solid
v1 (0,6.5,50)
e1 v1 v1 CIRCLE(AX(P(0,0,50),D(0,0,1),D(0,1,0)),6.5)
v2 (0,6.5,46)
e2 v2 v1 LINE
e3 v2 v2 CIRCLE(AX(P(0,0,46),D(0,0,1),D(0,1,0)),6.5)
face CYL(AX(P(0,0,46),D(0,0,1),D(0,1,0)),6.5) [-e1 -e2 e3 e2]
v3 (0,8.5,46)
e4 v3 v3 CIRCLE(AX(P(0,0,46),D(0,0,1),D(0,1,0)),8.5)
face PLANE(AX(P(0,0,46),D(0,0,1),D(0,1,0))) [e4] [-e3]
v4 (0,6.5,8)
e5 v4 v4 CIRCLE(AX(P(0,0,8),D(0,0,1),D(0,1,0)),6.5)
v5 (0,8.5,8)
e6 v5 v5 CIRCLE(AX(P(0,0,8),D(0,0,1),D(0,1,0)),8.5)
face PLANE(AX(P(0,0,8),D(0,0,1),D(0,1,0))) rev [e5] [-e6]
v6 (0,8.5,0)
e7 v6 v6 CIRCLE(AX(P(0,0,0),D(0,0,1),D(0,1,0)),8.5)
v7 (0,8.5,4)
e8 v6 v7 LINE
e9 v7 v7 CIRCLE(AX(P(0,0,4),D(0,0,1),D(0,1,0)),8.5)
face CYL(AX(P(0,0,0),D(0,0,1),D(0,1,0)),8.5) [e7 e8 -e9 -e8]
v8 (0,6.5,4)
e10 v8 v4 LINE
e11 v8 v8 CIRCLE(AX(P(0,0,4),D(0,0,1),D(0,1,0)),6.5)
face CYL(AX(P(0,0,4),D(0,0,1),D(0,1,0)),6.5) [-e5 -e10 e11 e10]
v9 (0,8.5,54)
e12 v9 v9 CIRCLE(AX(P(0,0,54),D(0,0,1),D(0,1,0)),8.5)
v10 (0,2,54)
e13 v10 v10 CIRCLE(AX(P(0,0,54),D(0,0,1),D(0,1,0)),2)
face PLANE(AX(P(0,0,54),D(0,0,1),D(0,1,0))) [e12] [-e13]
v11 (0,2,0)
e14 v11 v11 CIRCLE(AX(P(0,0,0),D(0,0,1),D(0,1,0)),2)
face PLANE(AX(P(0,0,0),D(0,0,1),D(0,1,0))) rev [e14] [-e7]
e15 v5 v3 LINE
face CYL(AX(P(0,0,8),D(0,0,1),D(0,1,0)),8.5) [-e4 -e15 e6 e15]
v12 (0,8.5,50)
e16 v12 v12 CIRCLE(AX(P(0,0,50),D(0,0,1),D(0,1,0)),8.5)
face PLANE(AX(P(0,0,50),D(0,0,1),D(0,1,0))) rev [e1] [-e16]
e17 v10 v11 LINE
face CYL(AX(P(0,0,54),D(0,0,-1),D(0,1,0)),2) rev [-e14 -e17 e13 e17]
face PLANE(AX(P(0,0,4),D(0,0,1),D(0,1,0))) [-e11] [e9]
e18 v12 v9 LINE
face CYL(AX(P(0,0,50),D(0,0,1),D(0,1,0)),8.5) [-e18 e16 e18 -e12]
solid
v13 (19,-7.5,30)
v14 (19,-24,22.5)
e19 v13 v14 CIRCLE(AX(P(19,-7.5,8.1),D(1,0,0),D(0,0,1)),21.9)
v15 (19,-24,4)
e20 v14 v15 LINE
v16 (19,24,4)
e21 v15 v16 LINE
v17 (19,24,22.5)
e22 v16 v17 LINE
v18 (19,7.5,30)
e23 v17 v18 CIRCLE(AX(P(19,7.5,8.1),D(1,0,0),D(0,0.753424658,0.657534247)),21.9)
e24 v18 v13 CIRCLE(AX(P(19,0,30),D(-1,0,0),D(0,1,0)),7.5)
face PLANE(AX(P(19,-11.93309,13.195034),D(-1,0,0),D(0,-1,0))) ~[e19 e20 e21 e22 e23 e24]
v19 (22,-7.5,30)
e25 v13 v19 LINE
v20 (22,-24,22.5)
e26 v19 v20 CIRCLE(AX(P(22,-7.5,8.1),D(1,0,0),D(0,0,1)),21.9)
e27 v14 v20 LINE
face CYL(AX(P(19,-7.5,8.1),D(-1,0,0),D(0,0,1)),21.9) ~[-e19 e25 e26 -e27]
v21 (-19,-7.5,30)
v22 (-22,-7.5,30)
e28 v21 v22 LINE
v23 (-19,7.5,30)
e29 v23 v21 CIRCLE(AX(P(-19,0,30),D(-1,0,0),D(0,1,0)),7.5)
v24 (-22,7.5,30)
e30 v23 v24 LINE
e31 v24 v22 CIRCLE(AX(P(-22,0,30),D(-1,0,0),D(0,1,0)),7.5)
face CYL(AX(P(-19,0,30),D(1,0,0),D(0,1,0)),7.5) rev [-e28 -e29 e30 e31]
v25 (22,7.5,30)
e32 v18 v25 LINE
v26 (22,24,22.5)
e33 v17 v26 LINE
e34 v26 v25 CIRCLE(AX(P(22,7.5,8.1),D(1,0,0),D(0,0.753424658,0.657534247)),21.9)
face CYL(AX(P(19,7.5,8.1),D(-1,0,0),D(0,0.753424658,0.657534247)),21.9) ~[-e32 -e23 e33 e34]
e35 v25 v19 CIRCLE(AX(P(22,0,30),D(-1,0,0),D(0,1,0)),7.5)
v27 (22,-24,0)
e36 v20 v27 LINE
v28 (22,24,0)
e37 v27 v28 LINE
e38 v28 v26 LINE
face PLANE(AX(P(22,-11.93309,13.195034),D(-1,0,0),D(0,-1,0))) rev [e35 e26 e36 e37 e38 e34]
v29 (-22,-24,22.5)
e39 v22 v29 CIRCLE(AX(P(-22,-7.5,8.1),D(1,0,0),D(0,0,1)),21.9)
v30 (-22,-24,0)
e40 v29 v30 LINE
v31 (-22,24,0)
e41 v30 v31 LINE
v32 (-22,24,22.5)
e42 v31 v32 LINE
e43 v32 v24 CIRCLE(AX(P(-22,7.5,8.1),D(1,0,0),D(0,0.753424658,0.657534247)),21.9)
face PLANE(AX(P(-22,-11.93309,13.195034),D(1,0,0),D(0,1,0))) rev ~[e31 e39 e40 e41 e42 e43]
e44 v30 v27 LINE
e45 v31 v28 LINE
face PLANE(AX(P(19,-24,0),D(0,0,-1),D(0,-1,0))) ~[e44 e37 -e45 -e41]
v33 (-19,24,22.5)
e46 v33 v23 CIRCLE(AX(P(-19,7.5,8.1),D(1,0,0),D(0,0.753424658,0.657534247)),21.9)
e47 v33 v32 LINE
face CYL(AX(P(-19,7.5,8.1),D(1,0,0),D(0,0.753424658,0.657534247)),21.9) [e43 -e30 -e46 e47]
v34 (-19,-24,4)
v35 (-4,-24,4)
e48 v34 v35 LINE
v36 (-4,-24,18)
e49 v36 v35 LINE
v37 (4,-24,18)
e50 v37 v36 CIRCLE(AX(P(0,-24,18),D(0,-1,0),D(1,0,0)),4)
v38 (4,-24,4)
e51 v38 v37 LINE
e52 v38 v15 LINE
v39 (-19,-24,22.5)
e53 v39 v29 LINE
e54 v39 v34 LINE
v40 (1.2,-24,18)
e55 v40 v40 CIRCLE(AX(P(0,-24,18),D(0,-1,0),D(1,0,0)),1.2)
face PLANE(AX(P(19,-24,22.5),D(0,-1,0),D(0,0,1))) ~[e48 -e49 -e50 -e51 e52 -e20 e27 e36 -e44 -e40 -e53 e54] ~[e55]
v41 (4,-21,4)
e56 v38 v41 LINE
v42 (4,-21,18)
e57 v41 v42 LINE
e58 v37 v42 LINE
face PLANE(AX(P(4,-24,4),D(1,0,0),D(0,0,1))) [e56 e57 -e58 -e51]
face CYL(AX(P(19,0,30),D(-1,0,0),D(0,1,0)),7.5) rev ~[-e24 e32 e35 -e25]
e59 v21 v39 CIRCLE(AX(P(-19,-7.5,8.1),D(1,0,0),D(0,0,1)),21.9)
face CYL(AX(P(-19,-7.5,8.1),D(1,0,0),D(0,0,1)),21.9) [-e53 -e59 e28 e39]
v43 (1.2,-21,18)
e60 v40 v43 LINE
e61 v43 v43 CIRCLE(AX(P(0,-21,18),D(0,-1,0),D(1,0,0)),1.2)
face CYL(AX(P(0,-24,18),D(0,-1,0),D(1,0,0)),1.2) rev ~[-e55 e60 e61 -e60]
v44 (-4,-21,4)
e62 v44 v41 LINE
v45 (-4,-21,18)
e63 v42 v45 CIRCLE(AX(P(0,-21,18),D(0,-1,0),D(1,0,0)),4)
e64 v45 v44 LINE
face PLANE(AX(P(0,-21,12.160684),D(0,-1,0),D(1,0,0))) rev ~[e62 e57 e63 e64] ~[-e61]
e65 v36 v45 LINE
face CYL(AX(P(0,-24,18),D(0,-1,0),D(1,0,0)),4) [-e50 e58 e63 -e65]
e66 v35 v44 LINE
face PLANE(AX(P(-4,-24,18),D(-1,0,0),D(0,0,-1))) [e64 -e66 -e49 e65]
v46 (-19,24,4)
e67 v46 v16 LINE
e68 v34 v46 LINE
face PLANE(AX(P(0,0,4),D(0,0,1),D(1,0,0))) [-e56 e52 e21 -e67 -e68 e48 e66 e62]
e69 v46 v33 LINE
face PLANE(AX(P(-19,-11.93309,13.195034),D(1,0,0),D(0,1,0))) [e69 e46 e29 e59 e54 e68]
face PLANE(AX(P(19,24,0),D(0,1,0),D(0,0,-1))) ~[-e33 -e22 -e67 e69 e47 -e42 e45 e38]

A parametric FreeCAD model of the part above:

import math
import FreeCAD as App
import Part
import Sketcher

V = App.Vector
Q = App.Units.Quantity


def add_polygon(sketch, points):
    """Adds a closed chain of lines whose ends are joined by coincident constraints."""
    first, n = sketch.GeometryCount, len(points)
    for a, b in zip(points, points[1:] + points[:1]):
        sketch.addGeometry(Part.LineSegment(App.Vector(*a, 0), App.Vector(*b, 0)), False)
    for i in range(n):
        sketch.addConstraint(Sketcher.Constraint("Coincident", first + i, 2, first + (i + 1) % n, 1))

doc = App.newDocument("Part")
body = doc.addObject("PartDesign::Body", "Body")

# Sketch on YZ plane
sketch1 = body.newObject("Sketcher::SketchObject", "Sketch")
sketch1.AttachmentSupport = (doc.getObject("YZ_Plane"), [""])
sketch1.MapMode = "FlatFace"
add_polygon(sketch1, [(2, 54), (2, 0), (8.5, 0), (8.5, 4), (6.5, 4), (6.5, 8), (8.5, 8), (8.5, 46), (6.5, 46), (6.5, 50), (8.5, 50), (8.5, 54)])  # lines 0-11
sketch1.addConstraint([
    Sketcher.Constraint("Vertical", 0),
    Sketcher.Constraint("Horizontal", 1),
    Sketcher.Constraint("Vertical", 2),
    Sketcher.Constraint("Horizontal", 3),
    Sketcher.Constraint("Vertical", 4),
    Sketcher.Constraint("Horizontal", 5),
    Sketcher.Constraint("Vertical", 6),
    Sketcher.Constraint("Horizontal", 7),
    Sketcher.Constraint("Vertical", 8),
    Sketcher.Constraint("Horizontal", 9),
    Sketcher.Constraint("Vertical", 10),
    Sketcher.Constraint("Horizontal", 11),
    Sketcher.Constraint("PointOnObject", 0, 2, -1),
    Sketcher.Constraint("Vertical", 2, 2, 5, 2),
    Sketcher.Constraint("Vertical", 4, 2, 7, 2),
    Sketcher.Constraint("Vertical", 6, 2, 9, 2),
    Sketcher.Constraint("Equal", 2, 4),
    Sketcher.Constraint("Equal", 4, 8),
    Sketcher.Constraint("Equal", 8, 10),
    Sketcher.Constraint("DistanceX", 3, 2, 3, 1, Q("2 mm")),
    Sketcher.Constraint("DistanceY", 0, 2, 0, 1, Q("54 mm")),
    Sketcher.Constraint("DistanceY", 2, 1, 2, 2, Q("4 mm")),
    Sketcher.Constraint("DistanceX", 1, 1, 1, 2, Q("6.5 mm")),
    Sketcher.Constraint("DistanceX", -1, 1, 0, 2, Q("2 mm")),
])
revolution = body.newObject("PartDesign::Revolution", "Revolution")
revolution.Profile = sketch1
revolution.ReferenceAxis = (sketch1, ["V_Axis"])
revolution.Angle = 360
body2 = doc.addObject("PartDesign::Body", "Body001")

# Sketch on XY plane
sketch2 = body2.newObject("Sketcher::SketchObject", "Sketch001")
sketch2.AttachmentSupport = (doc.getObject("XY_Plane001"), [""])
sketch2.MapMode = "FlatFace"
add_polygon(sketch2, [(-19, 24), (-19, -24), (19, -24), (19, 24)])  # lines 0-3
sketch2.addConstraint([
    Sketcher.Constraint("Vertical", 0),
    Sketcher.Constraint("Horizontal", 1),
    Sketcher.Constraint("Vertical", 2),
    Sketcher.Constraint("Horizontal", 3),
    Sketcher.Constraint("Symmetric", 0, 2, 2, 2, -1, 1),
    Sketcher.Constraint("DistanceX", 1, 1, 1, 2, Q("38 mm")),
    Sketcher.Constraint("DistanceY", 0, 2, 0, 1, Q("48 mm")),
])
pad1 = body2.newObject("PartDesign::Pad", "Pad")
pad1.Profile = sketch2
pad1.Length = 4
body3 = doc.addObject("PartDesign::Body", "Body002")

# Sketch on YZ plane
sketch3 = body3.newObject("Sketcher::SketchObject", "Sketch002")
sketch3.AttachmentSupport = (doc.getObject("YZ_Plane002"), [""])
sketch3.MapMode = "FlatFace"
sketch3.AttachmentOffset = App.Placement(V(0, 0, -19), App.Rotation())
sketch3.addGeometry([
    Part.ArcOfCircle(Part.Circle(V(-8, 8, 0), V(0, 0, 1), 22), math.radians(90), math.radians(139)),  # 0
    Part.LineSegment(V(-24, 22, 0), V(-24, 0, 0)),  # 1
    Part.LineSegment(V(-24, 0, 0), V(24, 0, 0)),  # 2
    Part.LineSegment(V(24, 0, 0), V(24, 22, 0)),  # 3
    Part.ArcOfCircle(Part.Circle(V(8, 8, 0), V(0, 0, 1), 22), math.radians(41), math.radians(90)),  # 4
    Part.ArcOfCircle(Part.Circle(V(0, 30, 0), V(0, 0, 1), 8), math.radians(180), math.radians(360)),  # 5
], False)
sketch3.addConstraint([
    Sketcher.Constraint("Coincident", 0, 2, 1, 1),
    Sketcher.Constraint("Coincident", 1, 2, 2, 1),
    Sketcher.Constraint("Coincident", 2, 2, 3, 1),
    Sketcher.Constraint("Coincident", 3, 2, 4, 1),
    Sketcher.Constraint("Coincident", 4, 2, 5, 2),
    Sketcher.Constraint("Coincident", 5, 1, 0, 1),
    Sketcher.Constraint("Vertical", 1),
    Sketcher.Constraint("Horizontal", 2),
    Sketcher.Constraint("Vertical", 3),
    Sketcher.Constraint("Equal", 0, 4),
    Sketcher.Constraint("Symmetric", 1, 2, 2, 2, -1, 1),
    Sketcher.Constraint("Symmetric", 0, 3, 4, 3, -2),
    Sketcher.Constraint("PointOnObject", 5, 3, -2),
    Sketcher.Constraint("Horizontal", 5, 3, 4, 2),
    Sketcher.Constraint("Vertical", 0, 3, 5, 1),
    Sketcher.Constraint("Radius", 0, Q("21.9 mm")),
    Sketcher.Constraint("Radius", 5, Q("7.5 mm")),
    Sketcher.Constraint("DistanceX", 2, 1, 2, 2, Q("48 mm")),
    Sketcher.Constraint("DistanceY", 1, 2, 1, 1, Q("22.5 mm")),
])
pad2 = body3.newObject("PartDesign::Pad", "Pad001")
pad2.Profile = sketch3
pad2.Length = 3
pad2.Reversed = True
doc.recompute()

body4 = doc.addObject("PartDesign::Body", "Body003")
body4.BaseFeature = body3
boolean = body2.newObject("PartDesign::Boolean", "Boolean")
boolean.Type = "Fuse"
boolean.addObjects([body4])
doc.recompute()

mirroring = doc.addObject("Part::Mirroring", "Mirroring")
mirroring.Source = body3
mirroring.Base = V(0, 0, 0)
mirroring.Normal = V(1, 0, 0)
body5 = doc.addObject("PartDesign::Body", "Body004")
body5.BaseFeature = mirroring
boolean2 = body2.newObject("PartDesign::Boolean", "Boolean001")
boolean2.Type = "Fuse"
boolean2.addObjects([body5])
doc.recompute()

# Sketch on XZ plane
sketch4 = body2.newObject("Sketcher::SketchObject", "Sketch003")
sketch4.AttachmentSupport = (doc.getObject("XZ_Plane001"), [""])
sketch4.MapMode = "FlatFace"
sketch4.AttachmentOffset = App.Placement(V(0, 0, 24), App.Rotation())
sketch4.addGeometry([
    Part.LineSegment(V(-4, 18, 0), V(-4, 4, 0)),  # 0
    Part.LineSegment(V(-4, 4, 0), V(4, 4, 0)),  # 1
    Part.LineSegment(V(4, 4, 0), V(4, 18, 0)),  # 2
    Part.ArcOfCircle(Part.Circle(V(0, 18, 0), V(0, 0, 1), 4), math.radians(0), math.radians(180)),  # 3
    Part.Circle(V(0, 18, 0), V(0, 0, 1), 1.2),  # 4
], False)
sketch4.addConstraint([
    Sketcher.Constraint("Coincident", 0, 2, 1, 1),
    Sketcher.Constraint("Coincident", 1, 2, 2, 1),
    Sketcher.Constraint("Tangent", 2, 2, 3, 1),
    Sketcher.Constraint("Tangent", 3, 2, 0, 1),
    Sketcher.Constraint("Vertical", 0),
    Sketcher.Constraint("Horizontal", 1),
    Sketcher.Constraint("Vertical", 2),
    Sketcher.Constraint("Coincident", 4, 3, 3, 3),
    Sketcher.Constraint("PointOnObject", 3, 3, -2),
    Sketcher.Constraint("Radius", 3, Q("4 mm")),
    Sketcher.Constraint("Diameter", 4, Q("2.4 mm")),
    Sketcher.Constraint("DistanceY", 0, 2, 0, 1, Q("14 mm")),
    Sketcher.Constraint("DistanceY", -1, 1, 3, 3, Q("18 mm")),
])
pad3 = body2.newObject("PartDesign::Pad", "Pad002")
pad3.Profile = sketch4
pad3.Length = 3
pad3.Reversed = True
mirroring.Visibility = False

doc.recompute()
